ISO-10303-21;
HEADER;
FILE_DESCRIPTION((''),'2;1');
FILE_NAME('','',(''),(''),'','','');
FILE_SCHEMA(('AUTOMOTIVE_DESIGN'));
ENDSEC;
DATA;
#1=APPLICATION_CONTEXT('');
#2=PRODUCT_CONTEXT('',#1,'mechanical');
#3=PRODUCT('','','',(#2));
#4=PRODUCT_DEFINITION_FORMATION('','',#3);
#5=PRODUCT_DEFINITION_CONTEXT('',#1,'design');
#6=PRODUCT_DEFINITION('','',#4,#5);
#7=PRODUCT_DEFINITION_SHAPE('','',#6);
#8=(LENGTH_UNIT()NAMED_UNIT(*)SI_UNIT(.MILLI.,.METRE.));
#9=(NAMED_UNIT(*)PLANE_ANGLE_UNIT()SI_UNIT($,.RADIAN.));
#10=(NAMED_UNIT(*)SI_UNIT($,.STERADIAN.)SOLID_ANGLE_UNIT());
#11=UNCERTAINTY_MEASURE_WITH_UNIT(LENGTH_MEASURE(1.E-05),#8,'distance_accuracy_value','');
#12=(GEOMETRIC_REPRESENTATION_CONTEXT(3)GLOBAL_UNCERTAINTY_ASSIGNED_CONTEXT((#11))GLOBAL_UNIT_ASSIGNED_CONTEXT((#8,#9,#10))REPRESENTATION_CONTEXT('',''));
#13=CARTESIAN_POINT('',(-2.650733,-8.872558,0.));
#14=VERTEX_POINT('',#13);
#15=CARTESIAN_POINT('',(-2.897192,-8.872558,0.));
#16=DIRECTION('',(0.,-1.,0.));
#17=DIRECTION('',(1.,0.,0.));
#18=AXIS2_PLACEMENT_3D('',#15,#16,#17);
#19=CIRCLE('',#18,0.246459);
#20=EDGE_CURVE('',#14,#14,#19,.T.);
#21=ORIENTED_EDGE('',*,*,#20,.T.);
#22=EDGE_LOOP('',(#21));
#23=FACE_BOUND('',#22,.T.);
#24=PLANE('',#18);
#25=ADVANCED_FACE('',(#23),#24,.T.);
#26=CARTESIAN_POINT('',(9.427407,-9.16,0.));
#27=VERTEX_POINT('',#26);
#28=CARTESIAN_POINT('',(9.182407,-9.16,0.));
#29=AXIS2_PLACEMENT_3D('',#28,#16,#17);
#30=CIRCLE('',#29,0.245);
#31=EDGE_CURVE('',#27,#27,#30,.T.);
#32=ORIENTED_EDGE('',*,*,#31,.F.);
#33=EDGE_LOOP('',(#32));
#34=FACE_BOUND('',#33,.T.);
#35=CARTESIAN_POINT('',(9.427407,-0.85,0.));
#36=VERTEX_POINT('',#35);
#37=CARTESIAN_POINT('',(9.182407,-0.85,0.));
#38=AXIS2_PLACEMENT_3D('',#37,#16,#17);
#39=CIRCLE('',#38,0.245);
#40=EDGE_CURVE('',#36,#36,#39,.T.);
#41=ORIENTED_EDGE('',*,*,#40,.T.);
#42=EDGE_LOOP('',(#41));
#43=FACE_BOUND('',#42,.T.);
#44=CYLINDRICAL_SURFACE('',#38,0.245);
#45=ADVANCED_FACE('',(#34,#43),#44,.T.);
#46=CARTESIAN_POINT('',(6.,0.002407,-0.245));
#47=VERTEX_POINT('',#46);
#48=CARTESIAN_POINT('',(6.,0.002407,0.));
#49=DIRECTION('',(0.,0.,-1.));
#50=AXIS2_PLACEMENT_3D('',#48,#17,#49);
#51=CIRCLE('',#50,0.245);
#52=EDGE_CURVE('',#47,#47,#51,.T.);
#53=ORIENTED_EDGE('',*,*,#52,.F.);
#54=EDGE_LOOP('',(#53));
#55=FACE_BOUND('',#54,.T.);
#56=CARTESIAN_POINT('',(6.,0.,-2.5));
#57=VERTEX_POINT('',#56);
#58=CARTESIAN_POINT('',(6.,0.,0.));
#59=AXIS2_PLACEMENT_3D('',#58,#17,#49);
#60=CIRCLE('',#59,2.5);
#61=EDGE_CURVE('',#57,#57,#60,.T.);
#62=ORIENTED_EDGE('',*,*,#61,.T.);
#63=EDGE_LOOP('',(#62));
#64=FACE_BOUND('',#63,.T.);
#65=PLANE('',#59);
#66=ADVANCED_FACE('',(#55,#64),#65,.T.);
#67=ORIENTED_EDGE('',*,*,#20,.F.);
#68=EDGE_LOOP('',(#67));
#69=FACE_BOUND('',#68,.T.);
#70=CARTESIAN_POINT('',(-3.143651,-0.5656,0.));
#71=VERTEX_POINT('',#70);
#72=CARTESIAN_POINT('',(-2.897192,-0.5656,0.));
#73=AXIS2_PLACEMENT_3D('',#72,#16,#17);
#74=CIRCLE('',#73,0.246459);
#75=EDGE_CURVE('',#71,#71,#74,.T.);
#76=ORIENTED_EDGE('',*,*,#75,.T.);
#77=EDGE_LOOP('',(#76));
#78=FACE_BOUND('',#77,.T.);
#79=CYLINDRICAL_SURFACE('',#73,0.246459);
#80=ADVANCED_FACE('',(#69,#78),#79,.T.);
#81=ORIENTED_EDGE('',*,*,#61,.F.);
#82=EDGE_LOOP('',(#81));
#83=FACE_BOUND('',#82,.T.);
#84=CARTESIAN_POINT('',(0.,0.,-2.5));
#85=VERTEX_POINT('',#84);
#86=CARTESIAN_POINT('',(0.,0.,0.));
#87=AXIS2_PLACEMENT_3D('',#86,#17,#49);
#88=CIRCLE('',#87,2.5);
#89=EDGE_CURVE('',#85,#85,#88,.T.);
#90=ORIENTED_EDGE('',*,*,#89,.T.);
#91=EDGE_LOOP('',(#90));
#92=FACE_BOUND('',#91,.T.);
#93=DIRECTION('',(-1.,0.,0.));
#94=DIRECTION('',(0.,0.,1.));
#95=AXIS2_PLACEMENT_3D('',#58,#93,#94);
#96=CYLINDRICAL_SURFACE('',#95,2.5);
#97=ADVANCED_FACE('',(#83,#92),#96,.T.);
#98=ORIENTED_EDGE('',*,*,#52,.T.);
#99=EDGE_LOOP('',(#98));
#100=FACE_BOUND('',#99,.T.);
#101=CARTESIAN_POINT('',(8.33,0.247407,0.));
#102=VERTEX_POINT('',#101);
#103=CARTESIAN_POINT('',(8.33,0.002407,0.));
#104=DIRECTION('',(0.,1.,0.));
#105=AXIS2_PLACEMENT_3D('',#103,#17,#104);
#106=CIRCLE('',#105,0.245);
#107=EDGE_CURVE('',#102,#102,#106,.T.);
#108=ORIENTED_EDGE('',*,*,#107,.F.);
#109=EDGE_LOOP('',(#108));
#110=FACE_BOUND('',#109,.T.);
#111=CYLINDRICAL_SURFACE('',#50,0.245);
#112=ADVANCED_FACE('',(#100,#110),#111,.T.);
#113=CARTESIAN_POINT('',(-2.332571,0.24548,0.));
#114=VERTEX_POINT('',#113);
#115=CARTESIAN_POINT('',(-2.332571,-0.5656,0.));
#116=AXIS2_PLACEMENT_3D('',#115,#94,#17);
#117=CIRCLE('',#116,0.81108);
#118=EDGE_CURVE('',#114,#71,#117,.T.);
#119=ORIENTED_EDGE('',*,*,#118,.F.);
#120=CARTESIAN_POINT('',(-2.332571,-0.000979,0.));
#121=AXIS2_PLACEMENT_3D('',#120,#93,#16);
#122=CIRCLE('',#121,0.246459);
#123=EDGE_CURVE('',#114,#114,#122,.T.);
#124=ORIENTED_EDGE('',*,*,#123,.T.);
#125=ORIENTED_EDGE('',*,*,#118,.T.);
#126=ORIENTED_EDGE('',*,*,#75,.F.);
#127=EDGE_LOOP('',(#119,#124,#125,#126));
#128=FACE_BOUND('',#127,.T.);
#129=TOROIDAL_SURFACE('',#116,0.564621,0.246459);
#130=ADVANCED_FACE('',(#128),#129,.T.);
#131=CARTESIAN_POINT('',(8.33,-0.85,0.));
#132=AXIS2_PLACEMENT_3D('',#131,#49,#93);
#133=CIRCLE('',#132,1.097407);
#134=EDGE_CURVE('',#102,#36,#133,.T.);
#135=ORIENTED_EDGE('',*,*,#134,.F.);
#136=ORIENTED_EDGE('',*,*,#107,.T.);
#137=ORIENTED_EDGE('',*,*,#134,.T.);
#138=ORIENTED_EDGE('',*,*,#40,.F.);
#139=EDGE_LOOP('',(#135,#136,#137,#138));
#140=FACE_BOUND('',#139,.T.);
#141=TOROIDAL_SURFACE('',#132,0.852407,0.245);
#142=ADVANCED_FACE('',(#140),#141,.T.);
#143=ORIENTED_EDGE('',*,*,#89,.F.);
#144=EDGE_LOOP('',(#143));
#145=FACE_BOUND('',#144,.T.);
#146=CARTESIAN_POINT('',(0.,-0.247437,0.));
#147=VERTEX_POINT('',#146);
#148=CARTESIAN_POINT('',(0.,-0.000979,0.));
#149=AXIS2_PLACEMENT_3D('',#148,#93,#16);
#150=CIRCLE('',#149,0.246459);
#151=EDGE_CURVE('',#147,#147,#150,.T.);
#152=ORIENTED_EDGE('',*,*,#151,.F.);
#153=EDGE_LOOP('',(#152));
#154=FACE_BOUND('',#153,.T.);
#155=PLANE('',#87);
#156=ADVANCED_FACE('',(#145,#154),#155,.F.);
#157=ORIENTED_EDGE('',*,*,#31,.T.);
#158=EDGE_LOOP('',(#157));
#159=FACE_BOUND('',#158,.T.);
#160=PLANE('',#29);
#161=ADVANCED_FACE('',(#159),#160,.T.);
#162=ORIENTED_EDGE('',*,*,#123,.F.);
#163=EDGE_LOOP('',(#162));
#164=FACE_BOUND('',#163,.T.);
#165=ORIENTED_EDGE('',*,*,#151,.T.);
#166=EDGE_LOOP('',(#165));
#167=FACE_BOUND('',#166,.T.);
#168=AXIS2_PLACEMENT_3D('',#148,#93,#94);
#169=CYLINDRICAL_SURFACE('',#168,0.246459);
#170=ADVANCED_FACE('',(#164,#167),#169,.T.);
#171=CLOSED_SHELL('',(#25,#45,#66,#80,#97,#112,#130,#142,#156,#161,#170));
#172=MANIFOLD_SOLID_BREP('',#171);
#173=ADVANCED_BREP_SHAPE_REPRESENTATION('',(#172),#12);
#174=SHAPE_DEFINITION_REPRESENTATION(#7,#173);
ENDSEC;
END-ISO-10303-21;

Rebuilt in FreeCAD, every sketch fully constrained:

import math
import FreeCAD as App
import Part
import Sketcher

V = App.Vector

doc = App.newDocument("Part")
body = doc.addObject("PartDesign::Body", "Body")

sketch1 = doc.addObject("Sketcher::SketchObject", "Sketch")
body.addObject(sketch1)
sketch1.AttachmentSupport = (doc.YZ_Plane, [""])
sketch1.MapMode = "FlatFace"
sketch1.addGeometry(Part.Circle(V(0, 0, 0), V(0, 0, 1), 2.5), False)
sketch1.addConstraint(Sketcher.Constraint("Coincident", 0, 3, -1, 1))
sketch1.addConstraint(Sketcher.Constraint("Diameter", 0, 5.0))
pad1 = doc.addObject("PartDesign::Pad", "Pad")
body.addObject(pad1)
pad1.Profile = sketch1
pad1.Length = 6

sketch2 = doc.addObject("Sketcher::SketchObject", "Sketch001")
body.addObject(sketch2)
sketch2.AttachmentSupport = (doc.XZ_Plane, [""])
sketch2.MapMode = "FlatFace"
sketch2.AttachmentOffset = App.Placement(V(0, 0, 8.872558), App.Rotation())
sketch2.addGeometry(Part.Circle(V(-2.9, 0, 0), V(0, 0, 1), 0.25), False)
sketch2.addConstraint(Sketcher.Constraint("PointOnObject", 0, 3, -1))
sketch2.addConstraint(Sketcher.Constraint("Diameter", 0, 0.492918))
sketch2.addConstraint(Sketcher.Constraint("DistanceX", 0, 3, -1, 1, 2.897192))

sketch3 = doc.addObject("Sketcher::SketchObject", "Sketch002")
body.addObject(sketch3)
sketch3.AttachmentSupport = (doc.XY_Plane, [""])
sketch3.MapMode = "FlatFace"
sketch3.addGeometry(Part.LineSegment(V(0, 0, 0), V(-2.3, 0, 0)), False)
sketch3.addGeometry(Part.ArcOfCircle(Part.Circle(V(-2.3, -0.6, 0), V(0, 0, 1), 0.6), math.radians(90), math.radians(180)), False)
sketch3.addGeometry(Part.LineSegment(V(-2.9, -0.6, 0), V(-2.9, -8.9, 0)), False)
sketch3.addConstraint(Sketcher.Constraint("Tangent", 0, 2, 1, 1))
sketch3.addConstraint(Sketcher.Constraint("Tangent", 1, 2, 2, 1))
sketch3.addConstraint(Sketcher.Constraint("Horizontal", 0))
sketch3.addConstraint(Sketcher.Constraint("Vertical", 2))
sketch3.addConstraint(Sketcher.Constraint("Coincident", 0, 1, -1, 1))
sketch3.addConstraint(Sketcher.Constraint("Radius", 1, 0.5656))
sketch3.addConstraint(Sketcher.Constraint("DistanceX", 0, 2, 0, 1, 2.332571))
sketch3.addConstraint(Sketcher.Constraint("DistanceY", 2, 2, 2, 1, 8.306958))
doc.recompute()

additivepipe = doc.addObject("PartDesign::AdditivePipe", "AdditivePipe")
body.addObject(additivepipe)
additivepipe.Profile = sketch2
additivepipe.Spine = (sketch3, ["Edge1", "Edge2", "Edge3"])

sketch4 = doc.addObject("Sketcher::SketchObject", "Sketch003")
body.addObject(sketch4)
sketch4.AttachmentSupport = (doc.XZ_Plane, [""])
sketch4.MapMode = "FlatFace"
sketch4.AttachmentOffset = App.Placement(V(0, 0, 9.16), App.Rotation())
sketch4.addGeometry(Part.Circle(V(9.18, 0, 0), V(0, 0, 1), 0.24), False)
sketch4.addConstraint(Sketcher.Constraint("PointOnObject", 0, 3, -1))
sketch4.addConstraint(Sketcher.Constraint("Diameter", 0, 0.49))
sketch4.addConstraint(Sketcher.Constraint("DistanceX", -1, 1, 0, 3, 9.182407))

sketch5 = doc.addObject("Sketcher::SketchObject", "Sketch004")
body.addObject(sketch5)
sketch5.AttachmentSupport = (doc.XY_Plane, [""])
sketch5.MapMode = "FlatFace"
sketch5.addGeometry(Part.LineSegment(V(6, 0, 0), V(8.3, 0, 0)), False)
sketch5.addGeometry(Part.ArcOfCircle(Part.Circle(V(8.3, -0.8, 0), V(0, 0, 1), 0.8), math.radians(0), math.radians(90)), False)
sketch5.addGeometry(Part.LineSegment(V(9.2, -0.8, 0), V(9.2, -9.2, 0)), False)
sketch5.addConstraint(Sketcher.Constraint("Tangent", 0, 2, 1, 2))
sketch5.addConstraint(Sketcher.Constraint("Tangent", 1, 1, 2, 1))
sketch5.addConstraint(Sketcher.Constraint("Horizontal", 0))
sketch5.addConstraint(Sketcher.Constraint("Vertical", 2))
sketch5.addConstraint(Sketcher.Constraint("PointOnObject", 0, 1, -1))
sketch5.addConstraint(Sketcher.Constraint("Radius", 1, 0.85))
sketch5.addConstraint(Sketcher.Constraint("DistanceX", -1, 1, 0, 1, 6.0))
sketch5.addConstraint(Sketcher.Constraint("DistanceX", 0, 1, 0, 2, 2.33))
sketch5.addConstraint(Sketcher.Constraint("DistanceY", 2, 2, 2, 1, 8.31))
doc.recompute()

additivepipe2 = doc.addObject("PartDesign::AdditivePipe", "AdditivePipe001")
body.addObject(additivepipe2)
additivepipe2.Profile = sketch4
additivepipe2.Spine = (sketch5, ["Edge1", "Edge2", "Edge3"])

doc.recompute()
